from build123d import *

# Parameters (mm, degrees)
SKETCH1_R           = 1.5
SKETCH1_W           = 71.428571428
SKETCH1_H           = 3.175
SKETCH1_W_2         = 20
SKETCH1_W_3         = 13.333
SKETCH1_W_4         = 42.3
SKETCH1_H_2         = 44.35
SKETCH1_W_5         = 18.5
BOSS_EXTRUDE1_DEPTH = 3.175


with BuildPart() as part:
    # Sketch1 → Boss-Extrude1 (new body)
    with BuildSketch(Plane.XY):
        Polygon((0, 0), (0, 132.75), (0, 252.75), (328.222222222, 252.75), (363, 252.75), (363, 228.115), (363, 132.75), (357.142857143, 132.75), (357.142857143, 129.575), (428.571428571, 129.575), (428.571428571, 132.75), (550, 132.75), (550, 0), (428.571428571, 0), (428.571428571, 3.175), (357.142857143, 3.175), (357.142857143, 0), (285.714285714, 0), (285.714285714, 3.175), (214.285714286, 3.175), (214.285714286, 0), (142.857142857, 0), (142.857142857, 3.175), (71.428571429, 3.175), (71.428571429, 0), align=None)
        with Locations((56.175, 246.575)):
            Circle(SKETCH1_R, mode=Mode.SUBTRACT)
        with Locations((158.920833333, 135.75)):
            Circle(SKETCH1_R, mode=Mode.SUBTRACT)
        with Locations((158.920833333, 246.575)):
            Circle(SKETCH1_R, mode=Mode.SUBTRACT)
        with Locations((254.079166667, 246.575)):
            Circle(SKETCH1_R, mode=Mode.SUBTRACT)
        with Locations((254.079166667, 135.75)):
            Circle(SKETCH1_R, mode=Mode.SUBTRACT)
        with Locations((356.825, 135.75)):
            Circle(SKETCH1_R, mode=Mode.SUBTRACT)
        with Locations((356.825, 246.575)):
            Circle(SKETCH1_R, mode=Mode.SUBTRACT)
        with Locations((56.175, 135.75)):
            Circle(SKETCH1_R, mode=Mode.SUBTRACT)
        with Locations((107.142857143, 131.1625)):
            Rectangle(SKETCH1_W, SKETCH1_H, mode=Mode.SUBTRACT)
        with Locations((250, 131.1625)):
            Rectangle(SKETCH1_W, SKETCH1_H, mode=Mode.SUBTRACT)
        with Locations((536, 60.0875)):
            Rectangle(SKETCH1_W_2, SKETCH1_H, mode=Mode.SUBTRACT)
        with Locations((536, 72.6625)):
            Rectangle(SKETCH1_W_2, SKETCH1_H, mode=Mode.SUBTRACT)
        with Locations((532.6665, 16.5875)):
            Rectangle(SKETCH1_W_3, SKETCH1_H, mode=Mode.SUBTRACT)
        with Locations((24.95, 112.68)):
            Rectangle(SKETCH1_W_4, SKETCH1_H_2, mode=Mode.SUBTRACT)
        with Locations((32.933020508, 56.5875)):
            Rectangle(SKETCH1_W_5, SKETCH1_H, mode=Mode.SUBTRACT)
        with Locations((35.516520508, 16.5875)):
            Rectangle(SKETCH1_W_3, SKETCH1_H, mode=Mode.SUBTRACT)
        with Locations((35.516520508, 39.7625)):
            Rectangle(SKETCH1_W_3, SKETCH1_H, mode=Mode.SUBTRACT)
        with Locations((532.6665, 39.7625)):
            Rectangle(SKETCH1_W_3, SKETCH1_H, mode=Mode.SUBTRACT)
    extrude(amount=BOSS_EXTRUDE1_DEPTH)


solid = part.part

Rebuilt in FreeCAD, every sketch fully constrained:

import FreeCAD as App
import Part
import Sketcher
from FreeCAD import Vector
Q = App.Units.Quantity


def add_polygon(sketch, points):
    """Adds a closed chain of lines whose ends are joined by coincident constraints."""
    first, n = sketch.GeometryCount, len(points)
    for a, b in zip(points, points[1:] + points[:1]):
        sketch.addGeometry(Part.LineSegment(App.Vector(*a, 0), App.Vector(*b, 0)), False)
    for i in range(n):
        sketch.addConstraint(Sketcher.Constraint("Coincident", first + i, 2, first + (i + 1) % n, 1))

doc = App.newDocument("Part")
body = doc.addObject("PartDesign::Body", "Body")

sketch1 = body.newObject("Sketcher::SketchObject", "Sketch")
sketch1.AttachmentSupport = (doc.getObject("XY_Plane"), [""])
sketch1.MapMode = "FlatFace"
add_polygon(sketch1, [(0, 252.75), (0, 0), (71.428571, 0), (71.428571, 3.175), (142.857143, 3.175), (142.857143, 0), (214.285714, 0), (214.285714, 3.175), (285.714286, 3.175), (285.714286, 0), (357.142857, 0), (357.142857, 3.175), (428.571429, 3.175), (428.571429, 0), (550, 0), (550, 132.75), (428.571429, 132.75), (428.571429, 129.575), (357.142857, 129.575), (357.142857, 132.75), (363, 132.75), (363, 252.75)])
add_polygon(sketch1, [(526, 15), (526, 18.175), (539.333, 18.175), (539.333, 15)])
add_polygon(sketch1, [(526, 38.175), (526, 41.35), (539.333, 41.35), (539.333, 38.175)])
add_polygon(sketch1, [(526, 58.5), (526, 61.675), (546, 61.675), (546, 58.5)])
add_polygon(sketch1, [(526, 71.075), (526, 74.25), (546, 74.25), (546, 71.075)])
add_polygon(sketch1, [(28.850021, 15), (28.850021, 18.175), (42.183021, 18.175), (42.183021, 15)])
add_polygon(sketch1, [(28.850021, 38.175), (28.850021, 41.35), (42.183021, 41.35), (42.183021, 38.175)])
add_polygon(sketch1, [(23.683021, 55), (23.683021, 58.175), (42.183021, 58.175), (42.183021, 55)])
add_polygon(sketch1, [(214.285714, 129.575), (214.285714, 132.75), (285.714286, 132.75), (285.714286, 129.575)])
add_polygon(sketch1, [(71.428571, 129.575), (71.428571, 132.75), (142.857143, 132.75), (142.857143, 129.575)])
add_polygon(sketch1, [(3.8, 90.505), (3.8, 134.855), (46.1, 134.855), (46.1, 90.505)])
sketch1.addGeometry(Part.Circle(Vector(356.825, 135.75, 0), Vector(0, 0, 1), 1.5), False)
sketch1.addGeometry(Part.Circle(Vector(356.825, 246.575, 0), Vector(0, 0, 1), 1.5), False)
sketch1.addGeometry(Part.Circle(Vector(254.079167, 135.75, 0), Vector(0, 0, 1), 1.5), False)
sketch1.addGeometry(Part.Circle(Vector(158.920833, 135.75, 0), Vector(0, 0, 1), 1.5), False)
sketch1.addGeometry(Part.Circle(Vector(56.175, 135.75, 0), Vector(0, 0, 1), 1.5), False)
sketch1.addGeometry(Part.Circle(Vector(254.079167, 246.575, 0), Vector(0, 0, 1), 1.5), False)
sketch1.addGeometry(Part.Circle(Vector(158.920833, 246.575, 0), Vector(0, 0, 1), 1.5), False)
sketch1.addGeometry(Part.Circle(Vector(56.175, 246.575, 0), Vector(0, 0, 1), 1.5), False)
sketch1.addConstraint(Sketcher.Constraint("Vertical", 0))
sketch1.addConstraint(Sketcher.Constraint("Horizontal", 1))
sketch1.addConstraint(Sketcher.Constraint("Vertical", 2))
sketch1.addConstraint(Sketcher.Constraint("Horizontal", 3))
sketch1.addConstraint(Sketcher.Constraint("Vertical", 4))
sketch1.addConstraint(Sketcher.Constraint("Horizontal", 5))
sketch1.addConstraint(Sketcher.Constraint("Vertical", 6))
sketch1.addConstraint(Sketcher.Constraint("Horizontal", 7))
sketch1.addConstraint(Sketcher.Constraint("Vertical", 8))
sketch1.addConstraint(Sketcher.Constraint("Horizontal", 9))
sketch1.addConstraint(Sketcher.Constraint("Vertical", 10))
sketch1.addConstraint(Sketcher.Constraint("Horizontal", 11))
sketch1.addConstraint(Sketcher.Constraint("Vertical", 12))
sketch1.addConstraint(Sketcher.Constraint("Horizontal", 13))
sketch1.addConstraint(Sketcher.Constraint("Vertical", 14))
sketch1.addConstraint(Sketcher.Constraint("Horizontal", 15))
sketch1.addConstraint(Sketcher.Constraint("Vertical", 16))
sketch1.addConstraint(Sketcher.Constraint("Horizontal", 17))
sketch1.addConstraint(Sketcher.Constraint("Vertical", 18))
sketch1.addConstraint(Sketcher.Constraint("Horizontal", 19))
sketch1.addConstraint(Sketcher.Constraint("Vertical", 20))
sketch1.addConstraint(Sketcher.Constraint("Horizontal", 21))
sketch1.addConstraint(Sketcher.Constraint("Vertical", 22))
sketch1.addConstraint(Sketcher.Constraint("Horizontal", 23))
sketch1.addConstraint(Sketcher.Constraint("Vertical", 24))
sketch1.addConstraint(Sketcher.Constraint("Horizontal", 25))
sketch1.addConstraint(Sketcher.Constraint("Vertical", 26))
sketch1.addConstraint(Sketcher.Constraint("Horizontal", 27))
sketch1.addConstraint(Sketcher.Constraint("Vertical", 28))
sketch1.addConstraint(Sketcher.Constraint("Horizontal", 29))
sketch1.addConstraint(Sketcher.Constraint("Vertical", 30))
sketch1.addConstraint(Sketcher.Constraint("Horizontal", 31))
sketch1.addConstraint(Sketcher.Constraint("Vertical", 32))
sketch1.addConstraint(Sketcher.Constraint("Horizontal", 33))
sketch1.addConstraint(Sketcher.Constraint("Vertical", 34))
sketch1.addConstraint(Sketcher.Constraint("Horizontal", 35))
sketch1.addConstraint(Sketcher.Constraint("Vertical", 36))
sketch1.addConstraint(Sketcher.Constraint("Horizontal", 37))
sketch1.addConstraint(Sketcher.Constraint("Vertical", 38))
sketch1.addConstraint(Sketcher.Constraint("Horizontal", 39))
sketch1.addConstraint(Sketcher.Constraint("Vertical", 40))
sketch1.addConstraint(Sketcher.Constraint("Horizontal", 41))
sketch1.addConstraint(Sketcher.Constraint("Vertical", 42))
sketch1.addConstraint(Sketcher.Constraint("Horizontal", 43))
sketch1.addConstraint(Sketcher.Constraint("Vertical", 44))
sketch1.addConstraint(Sketcher.Constraint("Horizontal", 45))
sketch1.addConstraint(Sketcher.Constraint("Vertical", 46))
sketch1.addConstraint(Sketcher.Constraint("Horizontal", 47))
sketch1.addConstraint(Sketcher.Constraint("Vertical", 48))
sketch1.addConstraint(Sketcher.Constraint("Horizontal", 49))
sketch1.addConstraint(Sketcher.Constraint("Vertical", 50))
sketch1.addConstraint(Sketcher.Constraint("Horizontal", 51))
sketch1.addConstraint(Sketcher.Constraint("Vertical", 52))
sketch1.addConstraint(Sketcher.Constraint("Horizontal", 53))
sketch1.addConstraint(Sketcher.Constraint("Vertical", 54))
sketch1.addConstraint(Sketcher.Constraint("Horizontal", 55))
sketch1.addConstraint(Sketcher.Constraint("Vertical", 56))
sketch1.addConstraint(Sketcher.Constraint("Horizontal", 57))
sketch1.addConstraint(Sketcher.Constraint("Vertical", 58))
sketch1.addConstraint(Sketcher.Constraint("Horizontal", 59))
sketch1.addConstraint(Sketcher.Constraint("Vertical", 60))
sketch1.addConstraint(Sketcher.Constraint("Horizontal", 61))
sketch1.addConstraint(Sketcher.Constraint("Coincident", 0, 2, -1, 1))
sketch1.addConstraint(Sketcher.Constraint("Equal", 62, 63))
sketch1.addConstraint(Sketcher.Constraint("Equal", 63, 64))
sketch1.addConstraint(Sketcher.Constraint("Equal", 64, 65))
sketch1.addConstraint(Sketcher.Constraint("Equal", 65, 66))
sketch1.addConstraint(Sketcher.Constraint("Equal", 66, 67))
sketch1.addConstraint(Sketcher.Constraint("Equal", 67, 68))
sketch1.addConstraint(Sketcher.Constraint("Equal", 68, 69))
sketch1.addConstraint(Sketcher.Constraint("PointOnObject", 4, 2, -1))
sketch1.addConstraint(Sketcher.Constraint("PointOnObject", 8, 2, -1))
sketch1.addConstraint(Sketcher.Constraint("PointOnObject", 12, 2, -1))
sketch1.addConstraint(Sketcher.Constraint("Horizontal", 62, 3, 64, 3))
sketch1.addConstraint(Sketcher.Constraint("Horizontal", 64, 3, 65, 3))
sketch1.addConstraint(Sketcher.Constraint("Horizontal", 65, 3, 66, 3))
sketch1.addConstraint(Sketcher.Constraint("Horizontal", 63, 3, 67, 3))
sketch1.addConstraint(Sketcher.Constraint("Horizontal", 67, 3, 68, 3))
sketch1.addConstraint(Sketcher.Constraint("Horizontal", 68, 3, 69, 3))
sketch1.addConstraint(Sketcher.Constraint("Horizontal", 3, 2, 6, 2))
sketch1.addConstraint(Sketcher.Constraint("Horizontal", 7, 2, 10, 2))
sketch1.addConstraint(Sketcher.Constraint("Horizontal", 15, 2, 18, 2))
sketch1.addConstraint(Sketcher.Constraint("Horizontal", 23, 2, 38, 2))
sketch1.addConstraint(Sketcher.Constraint("Horizontal", 25, 2, 40, 2))
sketch1.addConstraint(Sketcher.Constraint("Horizontal", 27, 2, 42, 2))
sketch1.addConstraint(Sketcher.Constraint("Horizontal", 29, 2, 44, 2))
sketch1.addConstraint(Sketcher.Constraint("Horizontal", 19, 2, 50, 2))
sketch1.addConstraint(Sketcher.Constraint("Horizontal", 17, 2, 52, 2))
sketch1.addConstraint(Sketcher.Constraint("Horizontal", 51, 2, 54, 2))
sketch1.addConstraint(Sketcher.Constraint("Horizontal", 53, 2, 56, 2))
sketch1.addConstraint(Sketcher.Constraint("Vertical", 62, 3, 63, 3))
sketch1.addConstraint(Sketcher.Constraint("Vertical", 64, 3, 67, 3))
sketch1.addConstraint(Sketcher.Constraint("Vertical", 65, 3, 68, 3))
sketch1.addConstraint(Sketcher.Constraint("Vertical", 66, 3, 69, 3))
sketch1.addConstraint(Sketcher.Constraint("Vertical", 12, 2, 15, 2))
sketch1.addConstraint(Sketcher.Constraint("Vertical", 10, 2, 17, 2))
sketch1.addConstraint(Sketcher.Constraint("Vertical", 25, 2, 26, 2))
sketch1.addConstraint(Sketcher.Constraint("Vertical", 24, 2, 27, 2))
sketch1.addConstraint(Sketcher.Constraint("Vertical", 29, 2, 30, 2))
sketch1.addConstraint(Sketcher.Constraint("Vertical", 33, 2, 34, 2))
sketch1.addConstraint(Sketcher.Constraint("Vertical", 32, 2, 35, 2))
sketch1.addConstraint(Sketcher.Constraint("Vertical", 41, 2, 42, 2))
sketch1.addConstraint(Sketcher.Constraint("Vertical", 40, 2, 43, 2))
sketch1.addConstraint(Sketcher.Constraint("Vertical", 44, 2, 47, 2))
sketch1.addConstraint(Sketcher.Constraint("Vertical", 6, 2, 50, 2))
sketch1.addConstraint(Sketcher.Constraint("Vertical", 8, 2, 51, 2))
sketch1.addConstraint(Sketcher.Constraint("Vertical", 2, 2, 54, 2))
sketch1.addConstraint(Sketcher.Constraint("Vertical", 4, 2, 55, 2))
sketch1.addConstraint(Sketcher.Constraint("Equal", 1, 3))
sketch1.addConstraint(Sketcher.Constraint("Equal", 3, 5))
sketch1.addConstraint(Sketcher.Constraint("Equal", 5, 7))
sketch1.addConstraint(Sketcher.Constraint("Equal", 7, 9))
sketch1.addConstraint(Sketcher.Constraint("Equal", 9, 11))
sketch1.addConstraint(Sketcher.Constraint("Equal", 29, 39))
sketch1.addConstraint(Sketcher.Constraint("Equal", 12, 16))
sketch1.addConstraint(Sketcher.Constraint("Equal", 18, 22))
sketch1.addConstraint(Sketcher.Constraint("Equal", 24, 26))
sketch1.addConstraint(Sketcher.Constraint("Equal", 28, 30))
sketch1.addConstraint(Sketcher.Constraint("Equal", 32, 34))
sketch1.addConstraint(Sketcher.Constraint("Equal", 44, 46))
sketch1.addConstraint(Sketcher.Constraint("Diameter", 62, Q("3 mm")))
sketch1.addConstraint(Sketcher.Constraint("DistanceX", 21, 2, 21, 1, Q("363 mm")))
sketch1.addConstraint(Sketcher.Constraint("DistanceX", 31, 1, 31, 2, Q("20 mm")))
sketch1.addConstraint(Sketcher.Constraint("DistanceY", 20, 1, 20, 2, Q("120 mm")))
sketch1.addConstraint(Sketcher.Constraint("DistanceX", 47, 1, 47, 2, Q("18.5 mm")))
sketch1.addConstraint(Sketcher.Constraint("DistanceX", 59, 1, 59, 2, Q("42.3 mm")))
sketch1.addConstraint(Sketcher.Constraint("DistanceX", -1, 1, 13, 2, Q("550 mm")))
sketch1.addConstraint(Sketcher.Constraint("DistanceX", -1, 1, 22, 2, Q("526 mm")))
sketch1.addConstraint(Sketcher.Constraint("DistanceY", -1, 1, 24, 2, Q("15 mm")))
sketch1.addConstraint(Sketcher.Constraint("DistanceY", -1, 1, 48, 2, Q("55 mm")))
sketch1.addConstraint(Sketcher.Constraint("DistanceY", 0, 2, 0, 1, Q("252.75 mm")))
sketch1.addConstraint(Sketcher.Constraint("DistanceY", 58, 1, 58, 2, Q("44.35 mm")))
sketch1.addConstraint(Sketcher.Constraint("DistanceY", -1, 1, 32, 2, Q("58.5 mm")))
sketch1.addConstraint(Sketcher.Constraint("DistanceX", -1, 1, 58, 2, Q("3.8 mm")))
sketch1.addConstraint(Sketcher.Constraint("DistanceX", 23, 1, 23, 2, Q("13.333 mm")))
sketch1.addConstraint(Sketcher.Constraint("DistanceY", 2, 1, 2, 2, Q("3.175 mm")))
sketch1.addConstraint(Sketcher.Constraint("DistanceY", -1, 1, 62, 3, Q("135.75 mm")))
sketch1.addConstraint(Sketcher.Constraint("DistanceY", -1, 1, 26, 2, Q("41.35 mm")))
sketch1.addConstraint(Sketcher.Constraint("DistanceY", -1, 1, 34, 2, Q("74.25 mm")))
sketch1.addConstraint(Sketcher.Constraint("DistanceX", -1, 1, 62, 3, Q("356.825 mm")))
sketch1.addConstraint(Sketcher.Constraint("DistanceY", -1, 1, 63, 3, Q("246.575 mm")))
sketch1.addConstraint(Sketcher.Constraint("DistanceX", -1, 1, 66, 3, Q("56.175 mm")))
sketch1.addConstraint(Sketcher.Constraint("DistanceY", -1, 1, 58, 2, Q("134.855 mm")))
sketch1.addConstraint(Sketcher.Constraint("DistanceX", 1, 1, 1, 2, Q("71.428571 mm")))
sketch1.addConstraint(Sketcher.Constraint("DistanceX", -1, 1, 38, 2, Q("28.850021 mm")))
sketch1.addConstraint(Sketcher.Constraint("DistanceX", -1, 1, 64, 3, Q("254.079167 mm")))
sketch1.addConstraint(Sketcher.Constraint("DistanceX", -1, 1, 65, 3, Q("158.920833 mm")))
pad1 = body.newObject("PartDesign::Pad", "Pad")
pad1.Profile = sketch1
pad1.Length = 3.175

doc.recompute()
